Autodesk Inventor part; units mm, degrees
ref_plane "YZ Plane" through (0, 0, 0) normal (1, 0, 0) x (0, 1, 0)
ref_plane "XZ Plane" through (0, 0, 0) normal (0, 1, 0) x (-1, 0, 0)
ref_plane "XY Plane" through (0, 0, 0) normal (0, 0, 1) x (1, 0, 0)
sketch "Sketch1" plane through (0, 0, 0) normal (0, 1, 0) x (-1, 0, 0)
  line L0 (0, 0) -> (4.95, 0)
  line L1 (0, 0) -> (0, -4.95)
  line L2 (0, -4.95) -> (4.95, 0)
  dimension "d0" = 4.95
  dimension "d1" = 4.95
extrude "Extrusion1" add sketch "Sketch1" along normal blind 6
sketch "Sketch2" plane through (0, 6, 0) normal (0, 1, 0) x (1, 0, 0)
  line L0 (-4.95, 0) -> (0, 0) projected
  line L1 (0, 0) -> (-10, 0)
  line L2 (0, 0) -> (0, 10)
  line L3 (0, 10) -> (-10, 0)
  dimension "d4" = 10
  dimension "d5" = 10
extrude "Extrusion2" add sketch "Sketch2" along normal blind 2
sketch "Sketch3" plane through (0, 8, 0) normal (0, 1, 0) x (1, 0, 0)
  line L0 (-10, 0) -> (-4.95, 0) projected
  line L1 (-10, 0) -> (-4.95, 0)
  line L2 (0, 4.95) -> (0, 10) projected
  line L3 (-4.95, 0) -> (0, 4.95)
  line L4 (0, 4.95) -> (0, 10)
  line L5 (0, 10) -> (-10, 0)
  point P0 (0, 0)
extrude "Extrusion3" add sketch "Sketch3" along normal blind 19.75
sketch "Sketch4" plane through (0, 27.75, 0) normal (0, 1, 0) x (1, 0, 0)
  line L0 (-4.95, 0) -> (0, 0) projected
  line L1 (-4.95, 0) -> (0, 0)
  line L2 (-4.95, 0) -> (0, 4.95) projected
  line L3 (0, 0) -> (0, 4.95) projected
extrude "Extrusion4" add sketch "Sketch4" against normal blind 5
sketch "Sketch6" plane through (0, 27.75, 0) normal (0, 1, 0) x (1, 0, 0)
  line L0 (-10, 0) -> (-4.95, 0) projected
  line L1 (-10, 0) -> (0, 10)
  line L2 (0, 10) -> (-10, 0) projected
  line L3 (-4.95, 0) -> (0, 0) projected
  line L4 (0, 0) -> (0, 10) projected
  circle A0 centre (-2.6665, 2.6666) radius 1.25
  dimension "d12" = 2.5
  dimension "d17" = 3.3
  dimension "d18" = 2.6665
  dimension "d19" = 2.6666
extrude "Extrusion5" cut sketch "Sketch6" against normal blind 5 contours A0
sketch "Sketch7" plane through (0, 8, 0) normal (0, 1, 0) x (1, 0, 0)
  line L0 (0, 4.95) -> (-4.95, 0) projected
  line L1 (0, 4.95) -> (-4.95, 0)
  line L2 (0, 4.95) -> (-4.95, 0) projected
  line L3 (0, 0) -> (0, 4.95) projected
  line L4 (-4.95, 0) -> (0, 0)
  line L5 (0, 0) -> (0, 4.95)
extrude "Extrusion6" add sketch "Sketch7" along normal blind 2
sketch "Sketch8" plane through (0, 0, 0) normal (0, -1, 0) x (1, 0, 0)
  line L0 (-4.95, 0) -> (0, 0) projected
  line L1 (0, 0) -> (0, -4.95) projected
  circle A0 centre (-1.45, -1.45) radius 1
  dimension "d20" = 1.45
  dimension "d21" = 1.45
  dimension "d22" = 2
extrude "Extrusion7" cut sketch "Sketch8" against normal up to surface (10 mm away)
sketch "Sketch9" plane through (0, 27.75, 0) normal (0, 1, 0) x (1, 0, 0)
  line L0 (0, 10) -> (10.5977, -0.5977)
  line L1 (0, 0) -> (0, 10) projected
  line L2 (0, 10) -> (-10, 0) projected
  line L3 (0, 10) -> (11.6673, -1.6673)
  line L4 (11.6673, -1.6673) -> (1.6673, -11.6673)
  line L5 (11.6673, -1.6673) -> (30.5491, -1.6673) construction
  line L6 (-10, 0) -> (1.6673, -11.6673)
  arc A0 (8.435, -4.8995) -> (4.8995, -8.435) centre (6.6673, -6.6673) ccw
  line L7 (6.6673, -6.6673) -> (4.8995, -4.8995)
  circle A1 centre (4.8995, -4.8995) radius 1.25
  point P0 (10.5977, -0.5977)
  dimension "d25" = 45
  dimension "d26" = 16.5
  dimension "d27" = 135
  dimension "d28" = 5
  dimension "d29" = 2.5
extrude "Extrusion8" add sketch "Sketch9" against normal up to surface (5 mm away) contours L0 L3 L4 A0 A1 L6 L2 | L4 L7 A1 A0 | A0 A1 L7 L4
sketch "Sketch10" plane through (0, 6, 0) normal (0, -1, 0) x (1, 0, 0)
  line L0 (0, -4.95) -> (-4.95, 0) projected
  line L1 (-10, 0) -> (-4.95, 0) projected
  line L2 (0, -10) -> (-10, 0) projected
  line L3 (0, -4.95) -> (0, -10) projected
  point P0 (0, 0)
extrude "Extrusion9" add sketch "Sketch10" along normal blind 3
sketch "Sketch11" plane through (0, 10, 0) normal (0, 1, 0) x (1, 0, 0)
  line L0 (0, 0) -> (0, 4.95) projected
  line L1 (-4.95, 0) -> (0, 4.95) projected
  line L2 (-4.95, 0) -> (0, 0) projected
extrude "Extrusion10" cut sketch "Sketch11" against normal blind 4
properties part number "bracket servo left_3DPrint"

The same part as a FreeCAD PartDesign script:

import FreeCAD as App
import Part
import Sketcher
Q = App.Units.Quantity

doc = App.newDocument("Part")
body = doc.addObject("PartDesign::Body", "Body")

sketch1 = body.newObject("Sketcher::SketchObject", "Sketch")
sketch1.AttachmentSupport = (doc.getObject("XZ_Plane"), [""])
sketch1.MapMode = "FlatFace"
sketch1.addGeometry([
    Part.LineSegment(App.Vector(-5, 0, 0), App.Vector(0, 0, 0)),
    Part.LineSegment(App.Vector(0, 0, 0), App.Vector(0, -5, 0)),
    Part.LineSegment(App.Vector(0, -5, 0), App.Vector(-5, 0, 0)),
], False)
sketch1.addConstraint([
    Sketcher.Constraint("Coincident", 0, 2, 1, 1),
    Sketcher.Constraint("Coincident", 1, 2, 2, 1),
    Sketcher.Constraint("Coincident", 2, 2, 0, 1),
    Sketcher.Constraint("Horizontal", 0),
    Sketcher.Constraint("Vertical", 1),
    Sketcher.Constraint("Coincident", 0, 2, -1, 1),
    Sketcher.Constraint("Equal", 0, 1),
    Sketcher.Constraint("DistanceX", 0, 1, 0, 2, Q("4.95 mm")),
])
pad1 = body.newObject("PartDesign::Pad", "Pad")
pad1.Profile = sketch1
pad1.Length = 6
pad1.Reversed = True

sketch2 = body.newObject("Sketcher::SketchObject", "Sketch001")
sketch2.AttachmentSupport = (doc.getObject("XZ_Plane"), [""])
sketch2.MapMode = "FlatFace"
sketch2.AttachmentOffset = App.Placement(App.Vector(0, 0, -6), App.Rotation())
sketch2.addGeometry([
    Part.LineSegment(App.Vector(-10, 0, 0), App.Vector(0, 0, 0)),
    Part.LineSegment(App.Vector(0, 0, 0), App.Vector(0, -10, 0)),
    Part.LineSegment(App.Vector(0, -10, 0), App.Vector(-10, 0, 0)),
], False)
sketch2.addConstraint([
    Sketcher.Constraint("Coincident", 0, 2, 1, 1),
    Sketcher.Constraint("Coincident", 1, 2, 2, 1),
    Sketcher.Constraint("Coincident", 2, 2, 0, 1),
    Sketcher.Constraint("Horizontal", 0),
    Sketcher.Constraint("Vertical", 1),
    Sketcher.Constraint("Coincident", 0, 2, -1, 1),
    Sketcher.Constraint("Equal", 0, 1),
    Sketcher.Constraint("DistanceX", 0, 1, 0, 2, Q("10 mm")),
])
pad2 = body.newObject("PartDesign::Pad", "Pad001")
pad2.Profile = sketch2
pad2.Length = 2
pad2.Reversed = True

sketch3 = body.newObject("Sketcher::SketchObject", "Sketch002")
sketch3.AttachmentSupport = (doc.getObject("XZ_Plane"), [""])
sketch3.MapMode = "FlatFace"
sketch3.AttachmentOffset = App.Placement(App.Vector(0, 0, -8), App.Rotation())
sketch3.addGeometry([
    Part.LineSegment(App.Vector(0, -10, 0), App.Vector(-10, 0, 0)),
    Part.LineSegment(App.Vector(-10, 0, 0), App.Vector(-5, 0, 0)),
    Part.LineSegment(App.Vector(-5, 0, 0), App.Vector(0, -5, 0)),
    Part.LineSegment(App.Vector(0, -5, 0), App.Vector(0, -10, 0)),
], False)
sketch3.addConstraint([
    Sketcher.Constraint("Coincident", 0, 2, 1, 1),
    Sketcher.Constraint("Coincident", 1, 2, 2, 1),
    Sketcher.Constraint("Coincident", 2, 2, 3, 1),
    Sketcher.Constraint("Coincident", 3, 2, 0, 1),
    Sketcher.Constraint("Horizontal", 1),
    Sketcher.Constraint("Vertical", 3),
    Sketcher.Constraint("PointOnObject", 0, 2, -1),
    Sketcher.Constraint("PointOnObject", 2, 2, -2),
    Sketcher.Constraint("Parallel", 0, 2),
    Sketcher.Constraint("Equal", 1, 3),
    Sketcher.Constraint("DistanceX", 0, 2, -1, 1, Q("10 mm")),
    Sketcher.Constraint("DistanceX", 1, 1, 1, 2, Q("5.05 mm")),
])
pad3 = body.newObject("PartDesign::Pad", "Pad002")
pad3.Profile = sketch3
pad3.Length = 19.75
pad3.Reversed = True

sketch4 = body.newObject("Sketcher::SketchObject", "Sketch003")
sketch4.AttachmentSupport = (doc.getObject("XZ_Plane"), [""])
sketch4.MapMode = "FlatFace"
sketch4.AttachmentOffset = App.Placement(App.Vector(0, 0, -27.75), App.Rotation())
sketch4.addGeometry([
    Part.LineSegment(App.Vector(0, -5, 0), App.Vector(-5, 0, 0)),
    Part.LineSegment(App.Vector(-5, 0, 0), App.Vector(0, 0, 0)),
    Part.LineSegment(App.Vector(0, 0, 0), App.Vector(0, -5, 0)),
], False)
sketch4.addConstraint([
    Sketcher.Constraint("Coincident", 0, 2, 1, 1),
    Sketcher.Constraint("Coincident", 1, 2, 2, 1),
    Sketcher.Constraint("Coincident", 2, 2, 0, 1),
    Sketcher.Constraint("Horizontal", 1),
    Sketcher.Constraint("Vertical", 2),
    Sketcher.Constraint("Coincident", 1, 2, -1, 1),
    Sketcher.Constraint("Equal", 1, 2),
    Sketcher.Constraint("DistanceX", 1, 1, 1, 2, Q("4.95 mm")),
])
pad4 = body.newObject("PartDesign::Pad", "Pad003")
pad4.Profile = sketch4
pad4.Length = 5

sketch5 = body.newObject("Sketcher::SketchObject", "Sketch004")
sketch5.AttachmentSupport = (doc.getObject("XZ_Plane"), [""])
sketch5.MapMode = "FlatFace"
sketch5.AttachmentOffset = App.Placement(App.Vector(0, 0, -27.75), App.Rotation())
sketch5.addGeometry(Part.Circle(App.Vector(-2.7, -2.7, 0), App.Vector(0, 0, 1), 1.2), False)
sketch5.addConstraint([
    Sketcher.Constraint("Diameter", 0, Q("2.5 mm")),
    Sketcher.Constraint("DistanceX", 0, 3, -1, 1, Q("2.6665 mm")),
    Sketcher.Constraint("DistanceY", 0, 3, -1, 1, Q("2.6666 mm")),
])
pocket1 = body.newObject("PartDesign::Pocket", "Pocket")
pocket1.Profile = sketch5
pocket1.Length = 5
pocket1.Reversed = True

sketch6 = body.newObject("Sketcher::SketchObject", "Sketch005")
sketch6.AttachmentSupport = (doc.getObject("XZ_Plane"), [""])
sketch6.MapMode = "FlatFace"
sketch6.AttachmentOffset = App.Placement(App.Vector(0, 0, -8), App.Rotation())
sketch6.addGeometry([
    Part.LineSegment(App.Vector(0, 0, 0), App.Vector(0, -5, 0)),
    Part.LineSegment(App.Vector(0, -5, 0), App.Vector(-5, 0, 0)),
    Part.LineSegment(App.Vector(-5, 0, 0), App.Vector(0, 0, 0)),
], False)
sketch6.addConstraint([
    Sketcher.Constraint("Coincident", 0, 2, 1, 1),
    Sketcher.Constraint("Coincident", 1, 2, 2, 1),
    Sketcher.Constraint("Coincident", 2, 2, 0, 1),
    Sketcher.Constraint("Vertical", 0),
    Sketcher.Constraint("Horizontal", 2),
    Sketcher.Constraint("Coincident", 2, 2, -1, 1),
    Sketcher.Constraint("Equal", 2, 0),
    Sketcher.Constraint("DistanceX", 2, 1, 2, 2, Q("4.95 mm")),
])
pad5 = body.newObject("PartDesign::Pad", "Pad004")
pad5.Profile = sketch6
pad5.Length = 2
pad5.Reversed = True

sketch7 = body.newObject("Sketcher::SketchObject", "Sketch006")
sketch7.AttachmentSupport = (doc.getObject("XZ_Plane"), [""])
sketch7.MapMode = "FlatFace"
sketch7.addGeometry(Part.Circle(App.Vector(-1.4, -1.4, 0), App.Vector(0, 0, 1), 1), False)
sketch7.addConstraint([
    Sketcher.Constraint("Diameter", 0, Q("2 mm")),
    Sketcher.Constraint("DistanceX", 0, 3, -1, 1, Q("1.45 mm")),
    Sketcher.Constraint("DistanceY", 0, 3, -1, 1, Q("1.45 mm")),
])
pocket2 = body.newObject("PartDesign::Pocket", "Pocket001")
pocket2.Profile = sketch7
pocket2.Length = 10

sketch8 = body.newObject("Sketcher::SketchObject", "Sketch007")
sketch8.AttachmentSupport = (doc.getObject("XZ_Plane"), [""])
sketch8.MapMode = "FlatFace"
sketch8.AttachmentOffset = App.Placement(App.Vector(0, 0, -27.75), App.Rotation())
sketch8.addGeometry([
    Part.LineSegment(App.Vector(0, -10, 0), App.Vector(-10, 0, 0)),
    Part.LineSegment(App.Vector(-10, 0, 0), App.Vector(1.7, 11.7, 0)),
    Part.LineSegment(App.Vector(1.7, 11.7, 0), App.Vector(11.7, 1.7, 0)),
    Part.LineSegment(App.Vector(11.7, 1.7, 0), App.Vector(0, -10, 0)),
    Part.Circle(App.Vector(4.9, 4.9, 0), App.Vector(0, 0, 1), 1.2),
], False)
sketch8.addConstraint([
    Sketcher.Constraint("Coincident", 0, 2, 1, 1),
    Sketcher.Constraint("Coincident", 1, 2, 2, 1),
    Sketcher.Constraint("Coincident", 2, 2, 3, 1),
    Sketcher.Constraint("Coincident", 3, 2, 0, 1),
    Sketcher.Constraint("PointOnObject", 0, 2, -1),
    Sketcher.Constraint("PointOnObject", 3, 2, -2),
    Sketcher.Constraint("Perpendicular", 0, 1),
    Sketcher.Constraint("Perpendicular", 1, 2),
    Sketcher.Constraint("Perpendicular", 2, 3),
    Sketcher.Constraint("Diameter", 4, Q("2.5 mm")),
    Sketcher.Constraint("Angle", 0, Q("135 deg")),
    Sketcher.Constraint("Distance", 1, Q("16.5 mm")),
    Sketcher.Constraint("DistanceX", 0, 2, -1, 1, Q("10 mm")),
    Sketcher.Constraint("DistanceX", -1, 1, 4, 3, Q("4.8995 mm")),
    Sketcher.Constraint("DistanceY", -1, 1, 4, 3, Q("4.8995 mm")),
])
pad6 = body.newObject("PartDesign::Pad", "Pad005")
pad6.Profile = sketch8
pad6.Length = 5

sketch9 = body.newObject("Sketcher::SketchObject", "Sketch008")
sketch9.AttachmentSupport = (doc.getObject("XZ_Plane"), [""])
sketch9.MapMode = "FlatFace"
sketch9.AttachmentOffset = App.Placement(App.Vector(0, 0, -6), App.Rotation())
sketch9.addGeometry([
    Part.LineSegment(App.Vector(0, -10, 0), App.Vector(0, -5, 0)),
    Part.LineSegment(App.Vector(0, -5, 0), App.Vector(-5, 0, 0)),
    Part.LineSegment(App.Vector(-5, 0, 0), App.Vector(-10, 0, 0)),
    Part.LineSegment(App.Vector(-10, 0, 0), App.Vector(0, -10, 0)),
], False)
sketch9.addConstraint([
    Sketcher.Constraint("Coincident", 0, 2, 1, 1),
    Sketcher.Constraint("Coincident", 1, 2, 2, 1),
    Sketcher.Constraint("Coincident", 2, 2, 3, 1),
    Sketcher.Constraint("Coincident", 3, 2, 0, 1),
    Sketcher.Constraint("Vertical", 0),
    Sketcher.Constraint("Horizontal", 2),
    Sketcher.Constraint("PointOnObject", 0, 2, -2),
    Sketcher.Constraint("PointOnObject", 1, 2, -1),
    Sketcher.Constraint("Parallel", 1, 3),
    Sketcher.Constraint("Equal", 2, 0),
    Sketcher.Constraint("DistanceX", 2, 2, -1, 1, Q("10 mm")),
    Sketcher.Constraint("DistanceX", 2, 2, 2, 1, Q("5.05 mm")),
])
pad7 = body.newObject("PartDesign::Pad", "Pad006")
pad7.Profile = sketch9
pad7.Length = 3

sketch10 = body.newObject("Sketcher::SketchObject", "Sketch009")
sketch10.AttachmentSupport = (doc.getObject("XZ_Plane"), [""])
sketch10.MapMode = "FlatFace"
sketch10.AttachmentOffset = App.Placement(App.Vector(0, 0, -10), App.Rotation())
sketch10.addGeometry([
    Part.LineSegment(App.Vector(-5, 0, 0), App.Vector(0, 0, 0)),
    Part.LineSegment(App.Vector(0, 0, 0), App.Vector(0, -5, 0)),
    Part.LineSegment(App.Vector(0, -5, 0), App.Vector(-5, 0, 0)),
], False)
sketch10.addConstraint([
    Sketcher.Constraint("Coincident", 0, 2, 1, 1),
    Sketcher.Constraint("Coincident", 1, 2, 2, 1),
    Sketcher.Constraint("Coincident", 2, 2, 0, 1),
    Sketcher.Constraint("Horizontal", 0),
    Sketcher.Constraint("Vertical", 1),
    Sketcher.Constraint("Coincident", 0, 2, -1, 1),
    Sketcher.Constraint("Equal", 0, 1),
    Sketcher.Constraint("DistanceX", 0, 1, 0, 2, Q("4.95 mm")),
])
pocket3 = body.newObject("PartDesign::Pocket", "Pocket002")
pocket3.Profile = sketch10
pocket3.Length = 4
pocket3.Reversed = True

doc.recompute()
